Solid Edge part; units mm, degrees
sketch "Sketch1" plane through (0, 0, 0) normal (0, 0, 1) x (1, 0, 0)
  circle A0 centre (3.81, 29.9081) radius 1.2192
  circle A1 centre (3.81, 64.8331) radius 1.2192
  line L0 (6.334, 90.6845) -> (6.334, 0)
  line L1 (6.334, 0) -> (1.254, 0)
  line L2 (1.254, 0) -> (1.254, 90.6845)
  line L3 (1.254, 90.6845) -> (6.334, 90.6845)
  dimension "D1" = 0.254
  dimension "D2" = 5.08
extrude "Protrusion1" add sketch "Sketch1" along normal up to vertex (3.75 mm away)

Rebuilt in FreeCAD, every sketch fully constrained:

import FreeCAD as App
import Part
import Sketcher

V = App.Vector
Q = App.Units.Quantity


def add_polygon(sketch, points):
    """Adds a closed chain of lines whose ends are joined by coincident constraints."""
    first, n = sketch.GeometryCount, len(points)
    for a, b in zip(points, points[1:] + points[:1]):
        sketch.addGeometry(Part.LineSegment(App.Vector(*a, 0), App.Vector(*b, 0)), False)
    for i in range(n):
        sketch.addConstraint(Sketcher.Constraint("Coincident", first + i, 2, first + (i + 1) % n, 1))

doc = App.newDocument("Part")
body = doc.addObject("PartDesign::Body", "Body")

sketch1 = body.newObject("Sketcher::SketchObject", "Sketch")
sketch1.AttachmentSupport = (doc.getObject("XY_Plane"), [""])
sketch1.MapMode = "FlatFace"
add_polygon(sketch1, [(6.334, 0), (6.334, 90.6845), (1.254, 90.6845), (1.254, 0)])
sketch1.addGeometry(Part.Circle(V(3.81, 29.9081, 0), V(0, 0, 1), 1.2192), False)
sketch1.addGeometry(Part.Circle(V(3.81, 64.8331, 0), V(0, 0, 1), 1.2192), False)
sketch1.addConstraint([
    Sketcher.Constraint("Vertical", 0),
    Sketcher.Constraint("Horizontal", 1),
    Sketcher.Constraint("Vertical", 2),
    Sketcher.Constraint("Horizontal", 3),
    Sketcher.Constraint("Equal", 4, 5),
    Sketcher.Constraint("PointOnObject", 2, 2, -1),
    Sketcher.Constraint("Vertical", 4, 3, 5, 3),
    Sketcher.Constraint("Diameter", 4, Q("0.096 in")),
    Sketcher.Constraint("DistanceX", 1, 2, 1, 1, Q("0.2 in")),
    Sketcher.Constraint("DistanceX", -1, 1, 4, 3, Q("0.15 in")),
    Sketcher.Constraint("DistanceY", 4, 3, 5, 3, Q("1.375 in")),
    Sketcher.Constraint("DistanceY", 0, 1, 0, 2, Q("90.6845 mm")),
    Sketcher.Constraint("DistanceY", -1, 1, 4, 3, Q("29.908 mm")),
    Sketcher.Constraint("DistanceX", -1, 1, 0, 2, Q("6.334 mm")),
])
pad1 = body.newObject("PartDesign::Pad", "Pad")
pad1.Profile = sketch1
pad1.Length = 3.75

doc.recompute()
